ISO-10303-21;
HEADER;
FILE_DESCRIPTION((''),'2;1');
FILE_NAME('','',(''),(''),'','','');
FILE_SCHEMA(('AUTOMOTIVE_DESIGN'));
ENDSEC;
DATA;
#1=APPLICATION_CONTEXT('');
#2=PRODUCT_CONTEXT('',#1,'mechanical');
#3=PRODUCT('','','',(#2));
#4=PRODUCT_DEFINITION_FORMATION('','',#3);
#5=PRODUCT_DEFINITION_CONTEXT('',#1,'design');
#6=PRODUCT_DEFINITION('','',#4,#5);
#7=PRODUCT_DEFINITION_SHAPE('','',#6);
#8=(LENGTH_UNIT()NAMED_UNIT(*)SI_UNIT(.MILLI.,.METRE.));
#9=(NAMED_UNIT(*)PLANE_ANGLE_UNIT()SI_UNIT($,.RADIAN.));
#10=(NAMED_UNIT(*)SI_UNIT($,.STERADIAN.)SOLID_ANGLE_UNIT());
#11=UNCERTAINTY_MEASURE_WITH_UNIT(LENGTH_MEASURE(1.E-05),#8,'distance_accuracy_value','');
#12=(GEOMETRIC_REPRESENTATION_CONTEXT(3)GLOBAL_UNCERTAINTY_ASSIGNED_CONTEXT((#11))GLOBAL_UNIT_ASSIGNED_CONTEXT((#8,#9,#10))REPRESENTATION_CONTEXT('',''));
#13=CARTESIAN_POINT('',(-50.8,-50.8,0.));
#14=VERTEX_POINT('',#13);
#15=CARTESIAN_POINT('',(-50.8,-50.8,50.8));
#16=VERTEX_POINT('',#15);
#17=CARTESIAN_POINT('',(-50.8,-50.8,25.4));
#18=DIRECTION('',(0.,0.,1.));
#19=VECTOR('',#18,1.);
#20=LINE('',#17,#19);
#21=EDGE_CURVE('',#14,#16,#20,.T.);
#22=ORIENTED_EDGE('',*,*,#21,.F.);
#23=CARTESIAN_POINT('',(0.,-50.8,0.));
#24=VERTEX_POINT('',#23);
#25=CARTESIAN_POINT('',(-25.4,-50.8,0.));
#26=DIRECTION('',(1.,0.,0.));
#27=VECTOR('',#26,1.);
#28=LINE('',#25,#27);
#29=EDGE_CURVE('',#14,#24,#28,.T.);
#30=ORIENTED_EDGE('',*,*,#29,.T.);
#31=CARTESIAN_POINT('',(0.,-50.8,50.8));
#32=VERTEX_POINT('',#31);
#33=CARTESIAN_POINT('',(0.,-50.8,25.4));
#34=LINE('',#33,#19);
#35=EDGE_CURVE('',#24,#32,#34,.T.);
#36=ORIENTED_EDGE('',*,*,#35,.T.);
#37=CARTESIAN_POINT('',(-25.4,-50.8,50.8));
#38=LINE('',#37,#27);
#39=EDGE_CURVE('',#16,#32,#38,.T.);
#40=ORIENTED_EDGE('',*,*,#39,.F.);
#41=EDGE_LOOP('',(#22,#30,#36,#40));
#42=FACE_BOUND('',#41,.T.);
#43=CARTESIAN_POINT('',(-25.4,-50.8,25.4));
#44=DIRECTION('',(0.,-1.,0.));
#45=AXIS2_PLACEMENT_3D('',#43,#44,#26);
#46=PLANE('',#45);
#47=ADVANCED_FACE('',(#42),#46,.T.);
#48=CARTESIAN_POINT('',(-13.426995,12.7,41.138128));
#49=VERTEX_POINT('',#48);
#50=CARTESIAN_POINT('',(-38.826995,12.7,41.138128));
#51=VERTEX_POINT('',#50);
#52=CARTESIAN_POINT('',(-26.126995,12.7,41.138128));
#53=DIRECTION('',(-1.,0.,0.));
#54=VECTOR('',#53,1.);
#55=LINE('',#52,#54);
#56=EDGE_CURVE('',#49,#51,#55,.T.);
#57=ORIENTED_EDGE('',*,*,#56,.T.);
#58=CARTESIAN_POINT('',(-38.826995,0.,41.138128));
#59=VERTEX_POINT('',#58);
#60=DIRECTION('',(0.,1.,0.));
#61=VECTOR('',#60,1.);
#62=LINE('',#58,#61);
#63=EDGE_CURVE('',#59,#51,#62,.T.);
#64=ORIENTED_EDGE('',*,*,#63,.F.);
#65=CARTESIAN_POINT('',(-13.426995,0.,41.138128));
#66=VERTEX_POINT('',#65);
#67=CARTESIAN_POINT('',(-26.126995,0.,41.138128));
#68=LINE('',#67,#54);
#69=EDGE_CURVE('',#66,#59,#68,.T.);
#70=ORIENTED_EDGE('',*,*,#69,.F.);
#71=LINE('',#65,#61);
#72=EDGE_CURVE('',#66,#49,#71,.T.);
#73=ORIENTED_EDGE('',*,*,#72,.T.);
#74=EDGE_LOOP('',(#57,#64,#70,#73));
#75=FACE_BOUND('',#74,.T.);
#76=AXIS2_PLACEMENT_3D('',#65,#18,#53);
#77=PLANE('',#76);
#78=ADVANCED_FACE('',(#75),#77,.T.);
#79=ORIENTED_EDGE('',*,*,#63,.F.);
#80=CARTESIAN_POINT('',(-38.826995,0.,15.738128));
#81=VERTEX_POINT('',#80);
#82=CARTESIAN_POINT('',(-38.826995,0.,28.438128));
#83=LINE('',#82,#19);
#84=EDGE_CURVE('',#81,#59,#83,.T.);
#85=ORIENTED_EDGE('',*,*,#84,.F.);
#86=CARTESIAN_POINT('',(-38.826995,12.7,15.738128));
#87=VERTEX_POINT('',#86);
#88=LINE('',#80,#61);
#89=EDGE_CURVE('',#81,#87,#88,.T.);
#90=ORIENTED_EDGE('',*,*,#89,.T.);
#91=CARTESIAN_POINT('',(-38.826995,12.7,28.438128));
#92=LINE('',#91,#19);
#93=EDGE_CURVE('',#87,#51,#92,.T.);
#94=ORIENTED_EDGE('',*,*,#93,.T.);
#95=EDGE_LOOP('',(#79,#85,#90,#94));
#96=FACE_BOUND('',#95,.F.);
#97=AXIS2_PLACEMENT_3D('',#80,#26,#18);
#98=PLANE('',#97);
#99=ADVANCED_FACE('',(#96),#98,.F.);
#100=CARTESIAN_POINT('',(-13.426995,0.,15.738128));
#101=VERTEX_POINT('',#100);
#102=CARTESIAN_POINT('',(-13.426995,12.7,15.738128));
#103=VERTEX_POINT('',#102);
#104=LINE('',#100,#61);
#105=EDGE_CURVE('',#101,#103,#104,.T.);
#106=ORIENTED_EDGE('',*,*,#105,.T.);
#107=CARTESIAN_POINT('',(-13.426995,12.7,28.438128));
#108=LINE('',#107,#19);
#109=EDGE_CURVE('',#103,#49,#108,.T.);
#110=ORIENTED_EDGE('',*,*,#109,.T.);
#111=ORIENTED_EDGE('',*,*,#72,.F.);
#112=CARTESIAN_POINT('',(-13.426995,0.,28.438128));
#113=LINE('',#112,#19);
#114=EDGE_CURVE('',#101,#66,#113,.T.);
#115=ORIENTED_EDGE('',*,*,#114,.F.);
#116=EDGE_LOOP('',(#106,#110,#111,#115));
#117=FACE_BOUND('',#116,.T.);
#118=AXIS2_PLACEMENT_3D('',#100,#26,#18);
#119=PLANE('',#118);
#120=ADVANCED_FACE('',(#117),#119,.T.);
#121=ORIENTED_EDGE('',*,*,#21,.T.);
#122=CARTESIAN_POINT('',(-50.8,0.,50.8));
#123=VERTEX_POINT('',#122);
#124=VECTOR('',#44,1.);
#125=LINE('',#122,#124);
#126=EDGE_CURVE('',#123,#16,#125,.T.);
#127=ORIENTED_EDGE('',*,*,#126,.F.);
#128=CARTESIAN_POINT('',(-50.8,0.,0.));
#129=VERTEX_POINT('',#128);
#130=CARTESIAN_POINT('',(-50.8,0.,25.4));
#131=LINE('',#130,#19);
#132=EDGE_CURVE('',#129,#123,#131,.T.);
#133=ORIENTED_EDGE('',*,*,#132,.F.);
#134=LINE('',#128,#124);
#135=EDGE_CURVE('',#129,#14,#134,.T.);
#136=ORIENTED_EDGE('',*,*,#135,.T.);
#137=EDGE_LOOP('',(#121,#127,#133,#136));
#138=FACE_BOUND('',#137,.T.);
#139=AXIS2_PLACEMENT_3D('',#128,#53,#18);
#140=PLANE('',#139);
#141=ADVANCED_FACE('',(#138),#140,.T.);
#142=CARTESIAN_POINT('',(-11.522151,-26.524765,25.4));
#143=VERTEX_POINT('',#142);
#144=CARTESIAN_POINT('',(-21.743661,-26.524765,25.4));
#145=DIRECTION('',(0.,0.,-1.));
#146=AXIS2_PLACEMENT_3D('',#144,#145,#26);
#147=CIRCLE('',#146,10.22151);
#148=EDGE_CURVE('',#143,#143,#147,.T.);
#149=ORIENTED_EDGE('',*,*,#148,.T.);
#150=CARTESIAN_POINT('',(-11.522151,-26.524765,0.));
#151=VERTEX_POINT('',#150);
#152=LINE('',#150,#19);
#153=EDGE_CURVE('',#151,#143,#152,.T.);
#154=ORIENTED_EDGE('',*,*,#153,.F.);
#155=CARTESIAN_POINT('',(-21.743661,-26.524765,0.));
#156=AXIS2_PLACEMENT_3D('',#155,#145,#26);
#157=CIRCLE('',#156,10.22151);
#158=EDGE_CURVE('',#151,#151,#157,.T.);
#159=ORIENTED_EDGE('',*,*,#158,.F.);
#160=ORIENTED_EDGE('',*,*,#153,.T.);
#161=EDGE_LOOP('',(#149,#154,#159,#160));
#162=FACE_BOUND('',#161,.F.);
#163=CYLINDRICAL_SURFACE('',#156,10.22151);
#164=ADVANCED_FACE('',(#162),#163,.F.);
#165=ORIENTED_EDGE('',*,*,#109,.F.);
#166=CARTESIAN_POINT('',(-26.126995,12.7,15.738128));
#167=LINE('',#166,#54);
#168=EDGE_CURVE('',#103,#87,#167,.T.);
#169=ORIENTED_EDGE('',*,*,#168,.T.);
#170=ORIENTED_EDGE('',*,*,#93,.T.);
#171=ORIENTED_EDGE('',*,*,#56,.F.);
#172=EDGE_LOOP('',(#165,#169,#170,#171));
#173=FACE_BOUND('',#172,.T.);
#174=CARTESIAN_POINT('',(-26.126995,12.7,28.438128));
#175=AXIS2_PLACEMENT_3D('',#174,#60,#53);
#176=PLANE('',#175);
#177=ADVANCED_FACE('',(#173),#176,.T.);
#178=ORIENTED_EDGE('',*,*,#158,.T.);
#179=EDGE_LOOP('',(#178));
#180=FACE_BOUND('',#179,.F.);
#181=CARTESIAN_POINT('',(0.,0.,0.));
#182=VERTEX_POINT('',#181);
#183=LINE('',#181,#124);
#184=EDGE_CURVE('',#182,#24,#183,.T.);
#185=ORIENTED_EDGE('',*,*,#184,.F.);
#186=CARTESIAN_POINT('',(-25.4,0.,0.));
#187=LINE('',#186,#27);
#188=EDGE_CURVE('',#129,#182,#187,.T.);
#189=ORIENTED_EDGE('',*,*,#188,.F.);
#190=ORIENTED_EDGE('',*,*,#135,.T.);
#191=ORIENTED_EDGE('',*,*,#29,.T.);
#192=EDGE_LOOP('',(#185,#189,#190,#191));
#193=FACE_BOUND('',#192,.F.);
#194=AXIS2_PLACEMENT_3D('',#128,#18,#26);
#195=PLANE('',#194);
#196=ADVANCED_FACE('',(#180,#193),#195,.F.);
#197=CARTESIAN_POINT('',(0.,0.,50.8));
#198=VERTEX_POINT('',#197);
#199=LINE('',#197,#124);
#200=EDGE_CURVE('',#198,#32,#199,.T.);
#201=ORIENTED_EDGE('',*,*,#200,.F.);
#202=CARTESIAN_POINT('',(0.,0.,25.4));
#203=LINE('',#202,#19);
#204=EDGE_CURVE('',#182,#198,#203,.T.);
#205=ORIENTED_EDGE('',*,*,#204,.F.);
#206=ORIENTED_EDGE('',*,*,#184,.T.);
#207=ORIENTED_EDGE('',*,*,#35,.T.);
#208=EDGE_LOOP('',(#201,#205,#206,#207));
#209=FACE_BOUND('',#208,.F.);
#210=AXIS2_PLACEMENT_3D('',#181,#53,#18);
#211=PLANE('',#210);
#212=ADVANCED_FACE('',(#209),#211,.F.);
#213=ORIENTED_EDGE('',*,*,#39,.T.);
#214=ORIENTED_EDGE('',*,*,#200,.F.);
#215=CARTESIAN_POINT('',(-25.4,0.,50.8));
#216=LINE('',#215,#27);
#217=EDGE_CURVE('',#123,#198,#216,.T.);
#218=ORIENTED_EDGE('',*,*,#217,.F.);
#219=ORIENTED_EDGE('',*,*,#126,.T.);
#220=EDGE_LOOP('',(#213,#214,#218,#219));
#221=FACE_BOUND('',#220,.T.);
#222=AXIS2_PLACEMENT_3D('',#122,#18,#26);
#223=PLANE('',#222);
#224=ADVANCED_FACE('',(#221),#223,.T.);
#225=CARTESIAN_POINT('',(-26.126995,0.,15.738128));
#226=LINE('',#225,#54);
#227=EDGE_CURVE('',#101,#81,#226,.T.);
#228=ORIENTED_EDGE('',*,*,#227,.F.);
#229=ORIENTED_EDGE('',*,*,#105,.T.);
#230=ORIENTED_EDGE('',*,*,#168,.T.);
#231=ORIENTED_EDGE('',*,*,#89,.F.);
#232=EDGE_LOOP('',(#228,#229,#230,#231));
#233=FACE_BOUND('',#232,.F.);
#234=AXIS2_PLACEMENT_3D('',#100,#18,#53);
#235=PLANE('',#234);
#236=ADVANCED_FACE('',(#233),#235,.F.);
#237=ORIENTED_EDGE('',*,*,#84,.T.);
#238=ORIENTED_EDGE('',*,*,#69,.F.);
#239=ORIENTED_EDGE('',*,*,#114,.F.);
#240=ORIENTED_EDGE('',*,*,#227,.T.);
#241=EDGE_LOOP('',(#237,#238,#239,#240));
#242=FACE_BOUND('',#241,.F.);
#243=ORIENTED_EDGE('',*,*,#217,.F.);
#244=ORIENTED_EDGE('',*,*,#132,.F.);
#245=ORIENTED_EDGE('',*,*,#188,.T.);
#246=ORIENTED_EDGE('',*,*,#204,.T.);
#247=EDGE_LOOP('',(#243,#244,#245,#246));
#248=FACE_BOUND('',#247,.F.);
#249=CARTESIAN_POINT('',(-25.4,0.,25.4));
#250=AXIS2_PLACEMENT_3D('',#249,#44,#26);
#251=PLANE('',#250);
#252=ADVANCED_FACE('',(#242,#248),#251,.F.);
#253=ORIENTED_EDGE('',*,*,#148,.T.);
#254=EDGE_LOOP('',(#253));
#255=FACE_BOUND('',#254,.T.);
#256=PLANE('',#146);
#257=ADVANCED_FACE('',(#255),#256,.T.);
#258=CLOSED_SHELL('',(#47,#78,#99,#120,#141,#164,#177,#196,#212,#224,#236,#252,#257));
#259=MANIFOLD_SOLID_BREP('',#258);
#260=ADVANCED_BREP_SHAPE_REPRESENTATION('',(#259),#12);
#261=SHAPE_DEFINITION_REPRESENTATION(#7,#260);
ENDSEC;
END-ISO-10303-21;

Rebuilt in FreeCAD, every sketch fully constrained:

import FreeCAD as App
import Part
import Sketcher
from FreeCAD import Vector
Q = App.Units.Quantity

doc = App.newDocument("Part")
body = doc.addObject("PartDesign::Body", "Body")

sketch1 = body.newObject("Sketcher::SketchObject", "Sketch")
sketch1.AttachmentSupport = (doc.getObject("XZ_Plane"), [""])
sketch1.MapMode = "FlatFace"
sketch1.addGeometry([
    Part.LineSegment(Vector(-51, 51, 0), Vector(-51, 0, 0)),
    Part.LineSegment(Vector(-51, 0, 0), Vector(0, 0, 0)),
    Part.LineSegment(Vector(0, 0, 0), Vector(0, 51, 0)),
    Part.LineSegment(Vector(0, 51, 0), Vector(-51, 51, 0)),
], False)
sketch1.addConstraint([
    Sketcher.Constraint("Coincident", 0, 2, 1, 1),
    Sketcher.Constraint("Coincident", 1, 2, 2, 1),
    Sketcher.Constraint("Coincident", 2, 2, 3, 1),
    Sketcher.Constraint("Coincident", 3, 2, 0, 1),
    Sketcher.Constraint("Vertical", 0),
    Sketcher.Constraint("Horizontal", 1),
    Sketcher.Constraint("Vertical", 2),
    Sketcher.Constraint("Horizontal", 3),
    Sketcher.Constraint("Coincident", 1, 2, -1, 1),
    Sketcher.Constraint("Equal", 3, 0),
    Sketcher.Constraint("DistanceX", 1, 1, 1, 2, Q("2 in")),
])
pad1 = body.newObject("PartDesign::Pad", "Pad")
pad1.Profile = sketch1
pad1.Length = Q("2 in")

sketch2 = body.newObject("Sketcher::SketchObject", "Sketch001")
sketch2.AttachmentSupport = (doc.getObject("XZ_Plane"), [""])
sketch2.MapMode = "FlatFace"
sketch2.addGeometry([
    Part.LineSegment(Vector(-13, 41, 0), Vector(-13, 16, 0)),
    Part.LineSegment(Vector(-13, 16, 0), Vector(-39, 16, 0)),
    Part.LineSegment(Vector(-39, 16, 0), Vector(-39, 41, 0)),
    Part.LineSegment(Vector(-39, 41, 0), Vector(-13, 41, 0)),
], False)
sketch2.addConstraint([
    Sketcher.Constraint("Coincident", 0, 2, 1, 1),
    Sketcher.Constraint("Coincident", 1, 2, 2, 1),
    Sketcher.Constraint("Coincident", 2, 2, 3, 1),
    Sketcher.Constraint("Coincident", 3, 2, 0, 1),
    Sketcher.Constraint("Vertical", 0),
    Sketcher.Constraint("Horizontal", 1),
    Sketcher.Constraint("Vertical", 2),
    Sketcher.Constraint("Horizontal", 3),
    Sketcher.Constraint("Equal", 3, 0),
    Sketcher.Constraint("DistanceX", 1, 2, 1, 1, Q("1 in")),
    Sketcher.Constraint("DistanceY", -1, 1, 2, 2, Q("41.138128 mm")),
    Sketcher.Constraint("DistanceX", 0, 2, -1, 1, Q("13.426995 mm")),
])
pad2 = body.newObject("PartDesign::Pad", "Pad001")
pad2.Profile = sketch2
pad2.Length = Q("0.5 in")
pad2.Reversed = True

sketch3 = body.newObject("Sketcher::SketchObject", "Sketch002")
sketch3.AttachmentSupport = (doc.getObject("XY_Plane"), [""])
sketch3.MapMode = "FlatFace"
sketch3.addGeometry(Part.Circle(Vector(-22, -27, 0), Vector(0, 0, 1), 10), False)
sketch3.addConstraint([
    Sketcher.Constraint("Diameter", 0, Q("20.44302 mm")),
    Sketcher.Constraint("DistanceX", 0, 3, -1, 1, Q("21.743661 mm")),
    Sketcher.Constraint("DistanceY", 0, 3, -1, 1, Q("26.524765 mm")),
])
pocket1 = body.newObject("PartDesign::Pocket", "Pocket")
pocket1.Profile = sketch3
pocket1.Length = Q("1 in")
pocket1.Reversed = True

doc.recompute()
